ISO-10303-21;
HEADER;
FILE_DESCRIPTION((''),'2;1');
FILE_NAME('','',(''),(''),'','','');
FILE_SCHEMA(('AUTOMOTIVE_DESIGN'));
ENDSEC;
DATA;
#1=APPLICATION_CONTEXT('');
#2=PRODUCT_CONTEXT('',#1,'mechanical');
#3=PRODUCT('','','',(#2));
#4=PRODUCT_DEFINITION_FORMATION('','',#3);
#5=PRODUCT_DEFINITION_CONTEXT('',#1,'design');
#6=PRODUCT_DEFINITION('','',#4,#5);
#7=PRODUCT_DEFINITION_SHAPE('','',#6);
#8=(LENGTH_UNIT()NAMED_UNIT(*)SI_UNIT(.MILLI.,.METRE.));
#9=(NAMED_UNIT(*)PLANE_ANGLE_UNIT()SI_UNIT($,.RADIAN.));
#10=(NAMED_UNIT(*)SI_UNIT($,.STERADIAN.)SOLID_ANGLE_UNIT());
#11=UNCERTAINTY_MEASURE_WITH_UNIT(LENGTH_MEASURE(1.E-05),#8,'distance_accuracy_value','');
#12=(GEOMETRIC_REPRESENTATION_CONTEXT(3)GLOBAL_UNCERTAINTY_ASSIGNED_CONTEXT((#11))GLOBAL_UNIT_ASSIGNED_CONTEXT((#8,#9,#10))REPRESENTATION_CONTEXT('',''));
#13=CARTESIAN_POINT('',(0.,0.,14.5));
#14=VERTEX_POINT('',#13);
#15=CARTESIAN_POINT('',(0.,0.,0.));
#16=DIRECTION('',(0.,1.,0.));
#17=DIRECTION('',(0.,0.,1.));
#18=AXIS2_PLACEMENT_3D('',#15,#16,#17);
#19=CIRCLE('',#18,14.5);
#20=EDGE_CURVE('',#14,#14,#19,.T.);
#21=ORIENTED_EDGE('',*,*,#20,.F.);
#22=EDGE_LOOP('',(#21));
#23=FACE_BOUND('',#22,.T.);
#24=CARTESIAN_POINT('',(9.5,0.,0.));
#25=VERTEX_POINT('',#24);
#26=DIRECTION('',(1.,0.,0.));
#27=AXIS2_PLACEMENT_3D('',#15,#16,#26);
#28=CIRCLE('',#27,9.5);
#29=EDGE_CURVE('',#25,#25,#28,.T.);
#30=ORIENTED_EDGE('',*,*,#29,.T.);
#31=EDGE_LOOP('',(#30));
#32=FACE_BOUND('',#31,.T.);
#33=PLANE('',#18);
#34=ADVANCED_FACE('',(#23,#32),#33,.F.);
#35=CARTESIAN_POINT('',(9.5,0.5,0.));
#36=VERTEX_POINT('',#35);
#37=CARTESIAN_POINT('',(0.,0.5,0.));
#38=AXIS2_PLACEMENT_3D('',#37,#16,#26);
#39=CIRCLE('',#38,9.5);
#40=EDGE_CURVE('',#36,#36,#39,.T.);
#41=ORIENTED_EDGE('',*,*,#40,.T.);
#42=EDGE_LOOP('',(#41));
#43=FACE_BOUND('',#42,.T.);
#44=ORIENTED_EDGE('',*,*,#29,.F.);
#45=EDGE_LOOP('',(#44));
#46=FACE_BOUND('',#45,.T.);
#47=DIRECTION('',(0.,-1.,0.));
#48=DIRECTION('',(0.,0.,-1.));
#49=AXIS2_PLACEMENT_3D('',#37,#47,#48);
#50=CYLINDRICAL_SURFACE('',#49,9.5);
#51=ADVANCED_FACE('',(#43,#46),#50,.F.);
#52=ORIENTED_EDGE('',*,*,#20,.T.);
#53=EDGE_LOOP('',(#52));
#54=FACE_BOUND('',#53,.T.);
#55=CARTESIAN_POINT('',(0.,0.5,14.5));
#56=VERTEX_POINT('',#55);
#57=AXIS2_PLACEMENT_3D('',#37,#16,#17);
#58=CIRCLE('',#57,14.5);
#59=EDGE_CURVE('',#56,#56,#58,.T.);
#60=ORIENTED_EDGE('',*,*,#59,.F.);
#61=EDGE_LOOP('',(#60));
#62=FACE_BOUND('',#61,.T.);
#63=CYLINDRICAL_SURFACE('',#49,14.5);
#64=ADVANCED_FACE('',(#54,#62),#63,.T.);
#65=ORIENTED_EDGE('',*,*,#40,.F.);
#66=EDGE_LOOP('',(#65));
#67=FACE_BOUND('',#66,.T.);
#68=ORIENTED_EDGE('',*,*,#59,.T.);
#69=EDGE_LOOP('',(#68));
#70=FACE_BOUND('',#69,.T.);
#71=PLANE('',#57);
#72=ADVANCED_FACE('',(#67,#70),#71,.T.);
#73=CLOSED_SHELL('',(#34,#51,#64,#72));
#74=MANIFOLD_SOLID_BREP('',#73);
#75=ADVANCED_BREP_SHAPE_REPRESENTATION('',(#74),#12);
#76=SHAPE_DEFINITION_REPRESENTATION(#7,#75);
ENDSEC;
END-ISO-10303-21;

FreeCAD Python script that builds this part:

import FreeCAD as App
import Part
import Sketcher
from FreeCAD import Vector

doc = App.newDocument("Part")
body = doc.addObject("PartDesign::Body", "Body")

# Sketch on XZ plane
sketch1 = body.newObject("Sketcher::SketchObject", "Sketch")
sketch1.AttachmentSupport = (doc.getObject("XZ_Plane"), [""])
sketch1.MapMode = "FlatFace"
sketch1.addGeometry(Part.Circle(Vector(0, 0, 0), Vector(0, 0, 1), 14), False)
sketch1.addGeometry(Part.Circle(Vector(0, 0, 0), Vector(0, 0, 1), 10), False)
sketch1.addConstraint(Sketcher.Constraint("Coincident", 0, 3, -1, 1))
sketch1.addConstraint(Sketcher.Constraint("Coincident", 1, 3, -1, 1))
sketch1.addConstraint(Sketcher.Constraint("Diameter", 0, 29.0))
sketch1.addConstraint(Sketcher.Constraint("Diameter", 1, 19.0))
pad1 = body.newObject("PartDesign::Pad", "Pad")
pad1.Profile = sketch1
pad1.Length = 0.5
pad1.Reversed = True

doc.recompute()
